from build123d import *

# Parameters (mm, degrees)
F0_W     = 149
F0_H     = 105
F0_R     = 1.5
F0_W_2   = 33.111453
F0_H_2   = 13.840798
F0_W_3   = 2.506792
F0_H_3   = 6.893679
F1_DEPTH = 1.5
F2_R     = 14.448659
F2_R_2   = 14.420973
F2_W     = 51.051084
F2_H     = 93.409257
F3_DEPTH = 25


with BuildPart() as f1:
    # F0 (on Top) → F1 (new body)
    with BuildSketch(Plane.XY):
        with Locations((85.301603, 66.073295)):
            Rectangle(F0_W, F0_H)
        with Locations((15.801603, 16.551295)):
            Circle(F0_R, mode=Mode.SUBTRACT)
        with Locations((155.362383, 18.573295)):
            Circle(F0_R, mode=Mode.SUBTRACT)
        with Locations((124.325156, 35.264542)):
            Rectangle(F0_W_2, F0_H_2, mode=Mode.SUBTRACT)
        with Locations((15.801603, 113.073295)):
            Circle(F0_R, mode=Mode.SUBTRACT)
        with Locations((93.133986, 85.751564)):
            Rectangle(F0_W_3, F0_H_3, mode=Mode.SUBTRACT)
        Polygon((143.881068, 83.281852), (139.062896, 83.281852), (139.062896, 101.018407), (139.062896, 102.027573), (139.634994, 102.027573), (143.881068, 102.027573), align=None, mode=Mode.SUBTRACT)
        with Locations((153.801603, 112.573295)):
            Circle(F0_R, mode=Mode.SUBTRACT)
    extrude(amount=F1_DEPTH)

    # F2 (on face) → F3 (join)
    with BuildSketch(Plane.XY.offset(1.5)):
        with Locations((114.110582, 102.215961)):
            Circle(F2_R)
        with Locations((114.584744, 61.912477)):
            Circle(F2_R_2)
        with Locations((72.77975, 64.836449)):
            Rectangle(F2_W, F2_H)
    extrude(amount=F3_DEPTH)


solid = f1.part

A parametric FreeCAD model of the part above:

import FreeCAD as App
import Part
import Sketcher

V = App.Vector


def add_polygon(sketch, points):
    """Adds a closed chain of lines whose ends are joined by coincident constraints."""
    first, n = sketch.GeometryCount, len(points)
    for a, b in zip(points, points[1:] + points[:1]):
        sketch.addGeometry(Part.LineSegment(App.Vector(*a, 0), App.Vector(*b, 0)), False)
    for i in range(n):
        sketch.addConstraint(Sketcher.Constraint("Coincident", first + i, 2, first + (i + 1) % n, 1))

doc = App.newDocument("Part")
body = doc.addObject("PartDesign::Body", "Body")

# Sketch on XY plane
sketch1 = body.newObject("Sketcher::SketchObject", "Sketch")
sketch1.AttachmentSupport = (doc.getObject("XY_Plane"), [""])
sketch1.MapMode = "FlatFace"
add_polygon(sketch1, [(10.8, 118.6), (10.8, 13.6), (159.8, 13.6), (159.8, 118.6)])  # lines 0-3
sketch1.addGeometry(Part.Circle(V(15.8, 16.6, 0), V(0, 0, 1), 1.5), False)  # 4
sketch1.addGeometry(Part.Circle(V(155.4, 18.6, 0), V(0, 0, 1), 1.5), False)  # 5
add_polygon(sketch1, [(140.9, 28.3), (107.8, 28.3), (107.8, 42.2), (140.9, 42.2)])  # lines 6-9
sketch1.addGeometry(Part.Circle(V(15.8, 113.1, 0), V(0, 0, 1), 1.5), False)  # 10
add_polygon(sketch1, [(94.4, 82.3), (91.9, 82.3), (91.9, 89.2), (94.4, 89.2)])  # lines 11-14
add_polygon(sketch1, [(143.9, 102), (143.9, 83.3), (139.1, 83.3), (139.1, 102)])  # lines 15-18
sketch1.addGeometry(Part.Circle(V(153.8, 112.6, 0), V(0, 0, 1), 1.5), False)  # 19
sketch1.addConstraint(Sketcher.Constraint("Vertical", 0))
sketch1.addConstraint(Sketcher.Constraint("Horizontal", 1))
sketch1.addConstraint(Sketcher.Constraint("Vertical", 2))
sketch1.addConstraint(Sketcher.Constraint("Horizontal", 3))
sketch1.addConstraint(Sketcher.Constraint("Horizontal", 6))
sketch1.addConstraint(Sketcher.Constraint("Vertical", 7))
sketch1.addConstraint(Sketcher.Constraint("Horizontal", 8))
sketch1.addConstraint(Sketcher.Constraint("Vertical", 9))
sketch1.addConstraint(Sketcher.Constraint("Horizontal", 11))
sketch1.addConstraint(Sketcher.Constraint("Vertical", 12))
sketch1.addConstraint(Sketcher.Constraint("Horizontal", 13))
sketch1.addConstraint(Sketcher.Constraint("Vertical", 14))
sketch1.addConstraint(Sketcher.Constraint("Vertical", 15))
sketch1.addConstraint(Sketcher.Constraint("Horizontal", 16))
sketch1.addConstraint(Sketcher.Constraint("Vertical", 17))
sketch1.addConstraint(Sketcher.Constraint("Horizontal", 18))
sketch1.addConstraint(Sketcher.Constraint("Equal", 4, 5))
sketch1.addConstraint(Sketcher.Constraint("Equal", 5, 10))
sketch1.addConstraint(Sketcher.Constraint("Equal", 10, 19))
sketch1.addConstraint(Sketcher.Constraint("Vertical", 4, 3, 10, 3))
sketch1.addConstraint(Sketcher.Constraint("Diameter", 4, 3.0))
sketch1.addConstraint(Sketcher.Constraint("DistanceX", 1, 1, 1, 2, 149.0))
sketch1.addConstraint(Sketcher.Constraint("DistanceY", 0, 2, 0, 1, 105.0))
sketch1.addConstraint(Sketcher.Constraint("DistanceY", 5, 3, 19, 3, 94.0))
sketch1.addConstraint(Sketcher.Constraint("DistanceX", 10, 3, 19, 3, 138.0))
sketch1.addConstraint(Sketcher.Constraint("DistanceX", 0, 2, 4, 3, 5.0))
sketch1.addConstraint(Sketcher.Constraint("DistanceY", 0, 2, 5, 3, 5.0))
sketch1.addConstraint(Sketcher.Constraint("DistanceY", 5, 3, 10, 3, 94.5))
sketch1.addConstraint(Sketcher.Constraint("DistanceY", 7, 1, 7, 2, 13.840798))
sketch1.addConstraint(Sketcher.Constraint("DistanceY", 4, 3, 5, 3, 2.022))
sketch1.addConstraint(Sketcher.Constraint("DistanceY", 12, 1, 12, 2, 6.893679))
sketch1.addConstraint(Sketcher.Constraint("DistanceY", 15, 2, 15, 1, 18.745721))
sketch1.addConstraint(Sketcher.Constraint("DistanceX", 8, 2, 5, 3, 14.4815))
sketch1.addConstraint(Sketcher.Constraint("DistanceX", 6, 2, 6, 1, 33.111453))
sketch1.addConstraint(Sketcher.Constraint("DistanceX", 11, 2, 11, 1, 2.506792))
sketch1.addConstraint(Sketcher.Constraint("DistanceX", 16, 2, 16, 1, 4.818172))
sketch1.addConstraint(Sketcher.Constraint("DistanceX", -1, 1, 6, 2, 107.76943))
sketch1.addConstraint(Sketcher.Constraint("DistanceY", -1, 1, 7, 2, 42.184941))
sketch1.addConstraint(Sketcher.Constraint("DistanceX", -1, 1, 11, 2, 91.88059))
sketch1.addConstraint(Sketcher.Constraint("DistanceX", -1, 1, 15, 2, 143.881068))
sketch1.addConstraint(Sketcher.Constraint("DistanceY", -1, 1, 15, 2, 83.281852))
sketch1.addConstraint(Sketcher.Constraint("DistanceX", 4, 3, 5, 3, 139.56078))
sketch1.addConstraint(Sketcher.Constraint("DistanceY", 6, 2, 19, 3, 84.229152))
sketch1.addConstraint(Sketcher.Constraint("DistanceY", 6, 2, 11, 2, 53.960582))
pad1 = body.newObject("PartDesign::Pad", "Pad")
pad1.Profile = sketch1
pad1.Length = 1.5

# Sketch on XY plane
sketch2 = body.newObject("Sketcher::SketchObject", "Sketch001")
sketch2.AttachmentSupport = (doc.getObject("XY_Plane"), [""])
sketch2.MapMode = "FlatFace"
sketch2.AttachmentOffset = App.Placement(V(0, 0, 1.5), App.Rotation())
sketch2.addGeometry(Part.Circle(V(114, 102, 0), V(0, 0, 1), 14), False)  # 0
sketch2.addGeometry(Part.Circle(V(115, 62, 0), V(0, 0, 1), 14), False)  # 1
add_polygon(sketch2, [(47, 112), (47, 18), (98, 18), (98, 112)])  # lines 2-5
sketch2.addConstraint(Sketcher.Constraint("Vertical", 2))
sketch2.addConstraint(Sketcher.Constraint("Horizontal", 3))
sketch2.addConstraint(Sketcher.Constraint("Vertical", 4))
sketch2.addConstraint(Sketcher.Constraint("Horizontal", 5))
sketch2.addConstraint(Sketcher.Constraint("Diameter", 0, 28.897318))
sketch2.addConstraint(Sketcher.Constraint("Diameter", 1, 28.841946))
sketch2.addConstraint(Sketcher.Constraint("DistanceY", 1, 3, 4, 2, 49.6286))
sketch2.addConstraint(Sketcher.Constraint("DistanceX", 3, 1, 3, 2, 51.051084))
sketch2.addConstraint(Sketcher.Constraint("DistanceY", 2, 2, 2, 1, 93.409257))
sketch2.addConstraint(Sketcher.Constraint("DistanceX", -1, 1, 0, 3, 114.110582))
sketch2.addConstraint(Sketcher.Constraint("DistanceY", -1, 1, 0, 3, 102.215961))
sketch2.addConstraint(Sketcher.Constraint("DistanceY", -1, 1, 2, 2, 18.13182))
sketch2.addConstraint(Sketcher.Constraint("DistanceX", -1, 1, 3, 2, 98.305292))
sketch2.addConstraint(Sketcher.Constraint("DistanceX", -1, 1, 1, 3, 114.584744))
pad2 = body.newObject("PartDesign::Pad", "Pad001")
pad2.Profile = sketch2
pad2.Length = 25

doc.recompute()
